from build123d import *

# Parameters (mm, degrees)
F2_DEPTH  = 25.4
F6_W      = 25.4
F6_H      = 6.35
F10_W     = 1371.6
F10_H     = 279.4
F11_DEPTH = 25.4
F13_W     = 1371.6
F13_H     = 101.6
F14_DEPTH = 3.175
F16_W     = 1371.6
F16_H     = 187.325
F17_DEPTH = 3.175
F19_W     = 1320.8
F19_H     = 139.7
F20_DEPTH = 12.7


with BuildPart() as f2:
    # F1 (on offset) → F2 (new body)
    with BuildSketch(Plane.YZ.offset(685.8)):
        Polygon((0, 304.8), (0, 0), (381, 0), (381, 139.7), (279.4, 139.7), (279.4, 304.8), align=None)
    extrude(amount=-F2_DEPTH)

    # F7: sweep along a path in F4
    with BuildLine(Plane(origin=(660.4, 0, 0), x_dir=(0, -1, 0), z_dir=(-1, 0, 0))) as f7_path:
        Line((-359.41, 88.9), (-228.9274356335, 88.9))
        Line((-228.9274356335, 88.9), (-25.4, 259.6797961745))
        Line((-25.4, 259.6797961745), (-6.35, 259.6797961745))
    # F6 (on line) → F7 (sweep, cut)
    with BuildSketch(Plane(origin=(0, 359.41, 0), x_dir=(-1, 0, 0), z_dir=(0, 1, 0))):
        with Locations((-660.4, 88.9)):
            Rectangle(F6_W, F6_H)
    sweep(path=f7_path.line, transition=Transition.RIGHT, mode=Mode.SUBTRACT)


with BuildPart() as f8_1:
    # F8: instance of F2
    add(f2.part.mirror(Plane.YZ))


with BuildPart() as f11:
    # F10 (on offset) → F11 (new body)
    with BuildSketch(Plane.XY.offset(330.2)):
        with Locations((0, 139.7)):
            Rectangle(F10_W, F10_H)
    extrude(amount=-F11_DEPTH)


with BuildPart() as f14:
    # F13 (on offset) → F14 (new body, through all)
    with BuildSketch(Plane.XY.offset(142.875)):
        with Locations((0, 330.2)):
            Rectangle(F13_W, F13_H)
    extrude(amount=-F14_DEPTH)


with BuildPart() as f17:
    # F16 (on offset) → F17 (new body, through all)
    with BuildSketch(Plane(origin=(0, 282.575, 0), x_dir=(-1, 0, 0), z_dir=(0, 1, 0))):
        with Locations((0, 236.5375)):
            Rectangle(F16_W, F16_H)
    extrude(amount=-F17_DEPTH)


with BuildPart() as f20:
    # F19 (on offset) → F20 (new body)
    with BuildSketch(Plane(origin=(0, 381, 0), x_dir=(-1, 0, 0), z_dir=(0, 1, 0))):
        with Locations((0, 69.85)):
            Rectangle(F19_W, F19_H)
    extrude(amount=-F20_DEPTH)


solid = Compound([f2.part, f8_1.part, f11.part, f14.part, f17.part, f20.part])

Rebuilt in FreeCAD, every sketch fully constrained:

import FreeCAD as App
import Part
import Sketcher
from FreeCAD import Vector
Q = App.Units.Quantity

doc = App.newDocument("Part")
body = doc.addObject("PartDesign::Body", "Body")

# Sketch on YZ plane
sketch1 = body.newObject("Sketcher::SketchObject", "Sketch")
sketch1.AttachmentSupport = (doc.getObject("YZ_Plane"), [""])
sketch1.MapMode = "FlatFace"
sketch1.AttachmentOffset = App.Placement(Vector(0, 0, 27 * 25.4), App.Rotation())
sketch1.addGeometry([
    Part.LineSegment(Vector(0, 305, 0), Vector(0, 0, 0)),  # 0
    Part.LineSegment(Vector(0, 0, 0), Vector(381, 0, 0)),  # 1
    Part.LineSegment(Vector(381, 0, 0), Vector(381, 140, 0)),  # 2
    Part.LineSegment(Vector(381, 140, 0), Vector(279, 140, 0)),  # 3
    Part.LineSegment(Vector(279, 140, 0), Vector(279, 305, 0)),  # 4
    Part.LineSegment(Vector(279, 305, 0), Vector(0, 305, 0)),  # 5
], False)
sketch1.addConstraint([
    Sketcher.Constraint("Coincident", 0, 2, 1, 1),
    Sketcher.Constraint("Coincident", 1, 2, 2, 1),
    Sketcher.Constraint("Coincident", 2, 2, 3, 1),
    Sketcher.Constraint("Coincident", 3, 2, 4, 1),
    Sketcher.Constraint("Coincident", 4, 2, 5, 1),
    Sketcher.Constraint("Coincident", 5, 2, 0, 1),
    Sketcher.Constraint("Vertical", 0),
    Sketcher.Constraint("Horizontal", 1),
    Sketcher.Constraint("Vertical", 2),
    Sketcher.Constraint("Horizontal", 3),
    Sketcher.Constraint("Vertical", 4),
    Sketcher.Constraint("Horizontal", 5),
    Sketcher.Constraint("Coincident", 0, 2, -1, 1),
    Sketcher.Constraint("DistanceX", 1, 1, 1, 2, Q("15 in")),
    Sketcher.Constraint("DistanceX", 3, 2, 3, 1, Q("4 in")),
    Sketcher.Constraint("DistanceY", 0, 2, 0, 1, Q("12 in")),
    Sketcher.Constraint("DistanceY", 2, 1, 2, 2, Q("5.5 in")),
])
pad1 = body.newObject("PartDesign::Pad", "Pad")
pad1.Profile = sketch1
pad1.Length = Q("1 in")
pad1.Reversed = True

# Sketch on XZ plane
sketch2 = body.newObject("Sketcher::SketchObject", "Sketch001")
sketch2.AttachmentSupport = (doc.getObject("XZ_Plane"), [""])
sketch2.MapMode = "FlatFace"
sketch2.AttachmentOffset = App.Placement(Vector(0, 0, -14.15 * 25.4), App.Rotation())
sketch2.addGeometry([
    Part.LineSegment(Vector(673, 92, 0), Vector(673, 86, 0)),
    Part.LineSegment(Vector(673, 86, 0), Vector(648, 86, 0)),
    Part.LineSegment(Vector(648, 86, 0), Vector(648, 92, 0)),
    Part.LineSegment(Vector(648, 92, 0), Vector(673, 92, 0)),
], False)
sketch2.addConstraint([
    Sketcher.Constraint("Coincident", 0, 2, 1, 1),
    Sketcher.Constraint("Coincident", 1, 2, 2, 1),
    Sketcher.Constraint("Coincident", 2, 2, 3, 1),
    Sketcher.Constraint("Coincident", 3, 2, 0, 1),
    Sketcher.Constraint("Vertical", 0),
    Sketcher.Constraint("Horizontal", 1),
    Sketcher.Constraint("Vertical", 2),
    Sketcher.Constraint("Horizontal", 3),
    Sketcher.Constraint("DistanceX", 1, 2, 1, 1, Q("1 in")),
    Sketcher.Constraint("DistanceY", 0, 2, 0, 1, Q("0.25 in")),
    Sketcher.Constraint("DistanceX", -1, 1, 0, 2, Q("26.5 in")),
    Sketcher.Constraint("DistanceY", -1, 1, 0, 2, Q("3.375 in")),
])

# Sketch on YZ plane
sketch3 = body.newObject("Sketcher::SketchObject", "Sketch002")
sketch3.AttachmentSupport = (doc.getObject("YZ_Plane"), [""])
sketch3.MapMode = "FlatFace"
sketch3.AttachmentOffset = App.Placement(Vector(0, 0, 26 * 25.4), App.Rotation())
sketch3.addGeometry([
    Part.LineSegment(Vector(359, 89, 0), Vector(229, 89, 0)),
    Part.LineSegment(Vector(229, 89, 0), Vector(25, 260, 0)),
    Part.LineSegment(Vector(25, 260, 0), Vector(6, 260, 0)),
], False)
sketch3.addConstraint([
    Sketcher.Constraint("Coincident", 0, 2, 1, 1),
    Sketcher.Constraint("Coincident", 1, 2, 2, 1),
    Sketcher.Constraint("Horizontal", 0),
    Sketcher.Constraint("Horizontal", 2),
    Sketcher.Constraint("DistanceX", -1, 1, 1, 2, Q("1 in")),
    Sketcher.Constraint("Angle", 1, Q("140 deg")),
    Sketcher.Constraint("DistanceX", 2, 2, 2, 1, Q("0.75 in")),
    Sketcher.Constraint("DistanceY", -1, 1, 0, 1, Q("3.5 in")),
    Sketcher.Constraint("DistanceX", 2, 2, 0, 1, Q("13.9 in")),
    Sketcher.Constraint("Distance", 1, Q("265.686198 mm")),
])
doc.recompute()

subtractivepipe = body.newObject("PartDesign::SubtractivePipe", "SubtractivePipe")
subtractivepipe.Profile = sketch2
subtractivepipe.Spine = (sketch3, ["Edge1", "Edge2", "Edge3"])
subtractivepipe.Transition = "Right corner"
body2 = doc.addObject("PartDesign::Body", "Body001")
doc.recompute()

mirroring = doc.addObject("Part::Mirroring", "Mirroring")
mirroring.Source = body
mirroring.Base = Vector(0, 0, 0)
mirroring.Normal = Vector(1, 0, 0)
body2.BaseFeature = mirroring
doc.recompute()
body3 = doc.addObject("PartDesign::Body", "Body002")

# Sketch on XY plane
sketch4 = body3.newObject("Sketcher::SketchObject", "Sketch003")
sketch4.AttachmentSupport = (doc.getObject("XY_Plane002"), [""])
sketch4.MapMode = "FlatFace"
sketch4.AttachmentOffset = App.Placement(Vector(0, 0, 13 * 25.4), App.Rotation())
sketch4.addGeometry([
    Part.LineSegment(Vector(-686, 279, 0), Vector(-686, 0, 0)),
    Part.LineSegment(Vector(-686, 0, 0), Vector(686, 0, 0)),
    Part.LineSegment(Vector(686, 0, 0), Vector(686, 279, 0)),
    Part.LineSegment(Vector(686, 279, 0), Vector(-686, 279, 0)),
], False)
sketch4.addConstraint([
    Sketcher.Constraint("Coincident", 0, 2, 1, 1),
    Sketcher.Constraint("Coincident", 1, 2, 2, 1),
    Sketcher.Constraint("Coincident", 2, 2, 3, 1),
    Sketcher.Constraint("Coincident", 3, 2, 0, 1),
    Sketcher.Constraint("Vertical", 0),
    Sketcher.Constraint("Horizontal", 1),
    Sketcher.Constraint("Vertical", 2),
    Sketcher.Constraint("Horizontal", 3),
    Sketcher.Constraint("Symmetric", 0, 2, 1, 2, -1, 1),
    Sketcher.Constraint("DistanceX", 1, 1, 1, 2, Q("54 in")),
    Sketcher.Constraint("DistanceY", 0, 2, 0, 1, Q("11 in")),
])
pad2 = body3.newObject("PartDesign::Pad", "Pad001")
pad2.Profile = sketch4
pad2.Length = Q("1 in")
pad2.Reversed = True
body4 = doc.addObject("PartDesign::Body", "Body003")

# Sketch on XY plane
sketch5 = body4.newObject("Sketcher::SketchObject", "Sketch004")
sketch5.AttachmentSupport = (doc.getObject("XY_Plane003"), [""])
sketch5.MapMode = "FlatFace"
sketch5.AttachmentOffset = App.Placement(Vector(0, 0, 5.625 * 25.4), App.Rotation())
sketch5.addGeometry([
    Part.LineSegment(Vector(-686, 381, 0), Vector(-686, 279, 0)),
    Part.LineSegment(Vector(-686, 279, 0), Vector(686, 279, 0)),
    Part.LineSegment(Vector(686, 279, 0), Vector(686, 381, 0)),
    Part.LineSegment(Vector(686, 381, 0), Vector(-686, 381, 0)),
], False)
sketch5.addConstraint([
    Sketcher.Constraint("Coincident", 0, 2, 1, 1),
    Sketcher.Constraint("Coincident", 1, 2, 2, 1),
    Sketcher.Constraint("Coincident", 2, 2, 3, 1),
    Sketcher.Constraint("Coincident", 3, 2, 0, 1),
    Sketcher.Constraint("Vertical", 0),
    Sketcher.Constraint("Horizontal", 1),
    Sketcher.Constraint("Vertical", 2),
    Sketcher.Constraint("Horizontal", 3),
    Sketcher.Constraint("DistanceX", 1, 1, 1, 2, Q("54 in")),
    Sketcher.Constraint("DistanceY", 0, 2, 0, 1, Q("4 in")),
    Sketcher.Constraint("DistanceX", 0, 2, -1, 1, Q("27 in")),
    Sketcher.Constraint("DistanceY", -1, 1, 0, 2, Q("11 in")),
])
pad3 = body4.newObject("PartDesign::Pad", "Pad002")
pad3.Profile = sketch5
pad3.Length = Q("0.125 in")
pad3.Reversed = True
body5 = doc.addObject("PartDesign::Body", "Body004")

# Sketch on XZ plane
sketch6 = body5.newObject("Sketcher::SketchObject", "Sketch005")
sketch6.AttachmentSupport = (doc.getObject("XZ_Plane004"), [""])
sketch6.MapMode = "FlatFace"
sketch6.AttachmentOffset = App.Placement(Vector(0, 0, -11.125 * 25.4), App.Rotation())
sketch6.addGeometry([
    Part.LineSegment(Vector(686, 330, 0), Vector(686, 143, 0)),
    Part.LineSegment(Vector(686, 143, 0), Vector(-686, 143, 0)),
    Part.LineSegment(Vector(-686, 143, 0), Vector(-686, 330, 0)),
    Part.LineSegment(Vector(-686, 330, 0), Vector(686, 330, 0)),
], False)
sketch6.addConstraint([
    Sketcher.Constraint("Coincident", 0, 2, 1, 1),
    Sketcher.Constraint("Coincident", 1, 2, 2, 1),
    Sketcher.Constraint("Coincident", 2, 2, 3, 1),
    Sketcher.Constraint("Coincident", 3, 2, 0, 1),
    Sketcher.Constraint("Vertical", 0),
    Sketcher.Constraint("Horizontal", 1),
    Sketcher.Constraint("Vertical", 2),
    Sketcher.Constraint("Horizontal", 3),
    Sketcher.Constraint("DistanceX", 1, 2, 1, 1, Q("54 in")),
    Sketcher.Constraint("DistanceX", -1, 1, 0, 2, Q("27 in")),
    Sketcher.Constraint("DistanceY", -1, 1, 2, 2, Q("13 in")),
    Sketcher.Constraint("DistanceY", 0, 2, 0, 1, Q("7.375 in")),
])
pad4 = body5.newObject("PartDesign::Pad", "Pad003")
pad4.Profile = sketch6
pad4.Length = Q("0.125 in")
body6 = doc.addObject("PartDesign::Body", "Body005")

# Sketch on XZ plane
sketch7 = body6.newObject("Sketcher::SketchObject", "Sketch006")
sketch7.AttachmentSupport = (doc.getObject("XZ_Plane005"), [""])
sketch7.MapMode = "FlatFace"
sketch7.AttachmentOffset = App.Placement(Vector(0, 0, -15 * 25.4), App.Rotation())
sketch7.addGeometry([
    Part.LineSegment(Vector(660, 140, 0), Vector(660, 0, 0)),
    Part.LineSegment(Vector(660, 0, 0), Vector(-660, 0, 0)),
    Part.LineSegment(Vector(-660, 0, 0), Vector(-660, 140, 0)),
    Part.LineSegment(Vector(-660, 140, 0), Vector(660, 140, 0)),
], False)
sketch7.addConstraint([
    Sketcher.Constraint("Coincident", 0, 2, 1, 1),
    Sketcher.Constraint("Coincident", 1, 2, 2, 1),
    Sketcher.Constraint("Coincident", 2, 2, 3, 1),
    Sketcher.Constraint("Coincident", 3, 2, 0, 1),
    Sketcher.Constraint("Vertical", 0),
    Sketcher.Constraint("Horizontal", 1),
    Sketcher.Constraint("Vertical", 2),
    Sketcher.Constraint("Horizontal", 3),
    Sketcher.Constraint("Symmetric", 0, 2, 1, 2, -1, 1),
    Sketcher.Constraint("DistanceX", 1, 2, 1, 1, Q("52 in")),
    Sketcher.Constraint("DistanceY", 0, 2, 0, 1, Q("5.5 in")),
])
pad5 = body6.newObject("PartDesign::Pad", "Pad004")
pad5.Profile = sketch7
pad5.Length = Q("0.5 in")
mirroring.Visibility = False

doc.recompute()
